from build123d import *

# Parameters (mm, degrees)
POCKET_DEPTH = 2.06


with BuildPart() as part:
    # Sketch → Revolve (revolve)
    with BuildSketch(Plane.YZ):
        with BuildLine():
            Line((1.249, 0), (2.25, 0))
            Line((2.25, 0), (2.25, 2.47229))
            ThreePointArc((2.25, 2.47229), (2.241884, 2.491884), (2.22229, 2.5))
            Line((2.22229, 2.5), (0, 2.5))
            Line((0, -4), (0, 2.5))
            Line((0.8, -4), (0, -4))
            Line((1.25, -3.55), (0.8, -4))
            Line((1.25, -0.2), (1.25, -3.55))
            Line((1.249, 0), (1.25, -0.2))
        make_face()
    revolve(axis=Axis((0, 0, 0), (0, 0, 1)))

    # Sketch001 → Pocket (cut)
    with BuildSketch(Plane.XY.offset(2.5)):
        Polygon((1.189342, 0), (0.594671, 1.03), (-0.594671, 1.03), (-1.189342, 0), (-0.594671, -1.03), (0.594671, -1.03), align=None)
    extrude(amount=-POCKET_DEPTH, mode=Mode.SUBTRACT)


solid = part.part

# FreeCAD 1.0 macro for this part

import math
import FreeCAD as App
import Part
import Sketcher
Q = App.Units.Quantity


def add_polygon(sketch, points):
    """Adds a closed chain of lines whose ends are joined by coincident constraints."""
    first, n = sketch.GeometryCount, len(points)
    for a, b in zip(points, points[1:] + points[:1]):
        sketch.addGeometry(Part.LineSegment(App.Vector(*a, 0), App.Vector(*b, 0)), False)
    for i in range(n):
        sketch.addConstraint(Sketcher.Constraint("Coincident", first + i, 2, first + (i + 1) % n, 1))

doc = App.newDocument("Part")
body = doc.addObject("PartDesign::Body", "Body")

# Sketch on YZ plane
sketch1 = doc.addObject("Sketcher::SketchObject", "Sketch")
body.addObject(sketch1)
sketch1.AttachmentSupport = (doc.YZ_Plane, [""])
sketch1.MapMode = "FlatFace"
sketch1.addGeometry([
    Part.LineSegment(App.Vector(1.249, 0, 0), App.Vector(2.25, 0, 0)),  # 0
    Part.LineSegment(App.Vector(2.25, 0, 0), App.Vector(2.25, 2.472, 0)),  # 1
    Part.ArcOfCircle(Part.Circle(App.Vector(2.222, 2.472, 0), App.Vector(0, 0, 1), 0.028), math.radians(0), math.radians(90)),  # 2
    Part.LineSegment(App.Vector(2.222, 2.5, 0), App.Vector(0, 2.5, 0)),  # 3
    Part.LineSegment(App.Vector(0, 2.5, 0), App.Vector(0, -4, 0)),  # 4
    Part.LineSegment(App.Vector(0, -4, 0), App.Vector(0.8, -4, 0)),  # 5
    Part.LineSegment(App.Vector(0.8, -4, 0), App.Vector(1.25, -3.55, 0)),  # 6
    Part.LineSegment(App.Vector(1.25, -3.55, 0), App.Vector(1.25, -0.2, 0)),  # 7
    Part.LineSegment(App.Vector(1.25, -0.2, 0), App.Vector(1.249, 0, 0)),  # 8
], False)
sketch1.addConstraint([
    Sketcher.Constraint("Coincident", 0, 2, 1, 1),
    Sketcher.Constraint("Coincident", 1, 2, 2, 1),
    Sketcher.Constraint("Coincident", 2, 2, 3, 1),
    Sketcher.Constraint("Coincident", 3, 2, 4, 1),
    Sketcher.Constraint("Coincident", 4, 2, 5, 1),
    Sketcher.Constraint("Coincident", 5, 2, 6, 1),
    Sketcher.Constraint("Coincident", 6, 2, 7, 1),
    Sketcher.Constraint("Coincident", 7, 2, 8, 1),
    Sketcher.Constraint("Coincident", 8, 2, 0, 1),
    Sketcher.Constraint("Horizontal", 0),
    Sketcher.Constraint("Vertical", 1),
    Sketcher.Constraint("Horizontal", 3),
    Sketcher.Constraint("Vertical", 4),
    Sketcher.Constraint("Horizontal", 5),
    Sketcher.Constraint("Vertical", 7),
    Sketcher.Constraint("PointOnObject", 0, 2, -1),
    Sketcher.Constraint("PointOnObject", 3, 2, -2),
    Sketcher.Constraint("Horizontal", 2, 3, 1, 2),
    Sketcher.Constraint("Angle", 6, Q("45 deg")),
    Sketcher.Constraint("DistanceX", 5, 1, 5, 2, Q("0.8 mm")),
    Sketcher.Constraint("DistanceY", 4, 2, 4, 1, Q("6.5 mm")),
    Sketcher.Constraint("DistanceY", 4, 2, -1, 1, Q("4 mm")),
    Sketcher.Constraint("DistanceX", 6, 2, 0, 2, Q("1 mm")),
    Sketcher.Constraint("DistanceY", 7, 1, 7, 2, Q("3.35 mm")),
    Sketcher.Constraint("DistanceY", 7, 2, -1, 1, Q("0.2 mm")),
    Sketcher.Constraint("DistanceX", 0, 1, 0, 2, Q("1.001 mm")),
    Sketcher.Constraint("Radius", 2, Q("0.02771 mm")),
    Sketcher.Constraint("DistanceX", 3, 2, 3, 1, Q("2.22229 mm")),
])
revolution = doc.addObject("PartDesign::Revolution", "Revolution")
body.addObject(revolution)
revolution.Profile = sketch1
revolution.ReferenceAxis = (sketch1, ["V_Axis"])
revolution.Angle = 360

# Sketch on XY plane
sketch2 = doc.addObject("Sketcher::SketchObject", "Sketch001")
body.addObject(sketch2)
sketch2.AttachmentSupport = (doc.XY_Plane, [""])
sketch2.MapMode = "FlatFace"
sketch2.AttachmentOffset = App.Placement(App.Vector(0, 0, 2.5), App.Rotation())
add_polygon(sketch2, [(1.2, 0), (0.6, 1), (-0.6, 1), (-1.2, 0), (-0.6, -1), (0.6, -1)])  # lines 0-5
sketch2.addConstraint([
    Sketcher.Constraint("Horizontal", 1),
    Sketcher.Constraint("Horizontal", 4),
    Sketcher.Constraint("Symmetric", 0, 2, 3, 2, -1, 1),
    Sketcher.Constraint("Symmetric", 2, 2, 5, 2, -1, 1),
    Sketcher.Constraint("PointOnObject", 2, 2, -1),
    Sketcher.Constraint("Parallel", 2, 5),
    Sketcher.Constraint("Vertical", 1, 2, 3, 2),
    Sketcher.Constraint("Angle", 0, Q("120.000009 deg")),
    Sketcher.Constraint("DistanceY", -1, 1, 0, 2, Q("1.03 mm")),
    Sketcher.Constraint("DistanceX", 1, 2, 1, 1, Q("1.189342 mm")),
])
pocket1 = doc.addObject("PartDesign::Pocket", "Pocket")
body.addObject(pocket1)
pocket1.Profile = sketch2
pocket1.Length = 2.06

doc.recompute()
